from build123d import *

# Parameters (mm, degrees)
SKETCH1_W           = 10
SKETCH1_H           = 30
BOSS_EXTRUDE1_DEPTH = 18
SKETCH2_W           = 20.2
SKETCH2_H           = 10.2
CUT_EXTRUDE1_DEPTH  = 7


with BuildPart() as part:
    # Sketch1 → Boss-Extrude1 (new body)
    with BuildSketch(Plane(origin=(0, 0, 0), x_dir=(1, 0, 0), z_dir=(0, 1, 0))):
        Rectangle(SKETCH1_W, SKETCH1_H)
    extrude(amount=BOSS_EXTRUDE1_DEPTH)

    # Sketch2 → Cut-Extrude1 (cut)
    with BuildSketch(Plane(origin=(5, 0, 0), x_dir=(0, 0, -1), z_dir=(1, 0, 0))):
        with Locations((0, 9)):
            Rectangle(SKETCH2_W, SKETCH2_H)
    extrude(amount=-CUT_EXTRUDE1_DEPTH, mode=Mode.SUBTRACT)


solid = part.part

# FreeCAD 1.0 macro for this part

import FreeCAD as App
import Part
import Sketcher
from FreeCAD import Vector
Q = App.Units.Quantity

doc = App.newDocument("Part")
body = doc.addObject("PartDesign::Body", "Body")

sketch1 = body.newObject("Sketcher::SketchObject", "Sketch")
sketch1.AttachmentSupport = (doc.getObject("XZ_Plane"), [""])
sketch1.MapMode = "FlatFace"
sketch1.addGeometry(Part.LineSegment(Vector(-5, -15, 0), Vector(-5, 15, 0)), False)
sketch1.addGeometry(Part.LineSegment(Vector(-5, 15, 0), Vector(5, 15, 0)), False)
sketch1.addGeometry(Part.LineSegment(Vector(5, 15, 0), Vector(5, -15, 0)), False)
sketch1.addGeometry(Part.LineSegment(Vector(5, -15, 0), Vector(-5, -15, 0)), False)
sketch1.addConstraint(Sketcher.Constraint("Coincident", 0, 2, 1, 1))
sketch1.addConstraint(Sketcher.Constraint("Coincident", 1, 2, 2, 1))
sketch1.addConstraint(Sketcher.Constraint("Coincident", 2, 2, 3, 1))
sketch1.addConstraint(Sketcher.Constraint("Coincident", 3, 2, 0, 1))
sketch1.addConstraint(Sketcher.Constraint("Vertical", 0))
sketch1.addConstraint(Sketcher.Constraint("Horizontal", 1))
sketch1.addConstraint(Sketcher.Constraint("Vertical", 2))
sketch1.addConstraint(Sketcher.Constraint("Horizontal", 3))
sketch1.addConstraint(Sketcher.Constraint("Symmetric", 0, 2, 2, 2, -1, 1))
sketch1.addConstraint(Sketcher.Constraint("DistanceX", 1, 1, 1, 2, Q("10 mm")))
sketch1.addConstraint(Sketcher.Constraint("DistanceY", 0, 1, 0, 2, Q("30 mm")))
pad1 = body.newObject("PartDesign::Pad", "Pad")
pad1.Profile = sketch1
pad1.Length = 18
pad1.Reversed = True

sketch2 = body.newObject("Sketcher::SketchObject", "Sketch001")
sketch2.AttachmentSupport = (doc.getObject("YZ_Plane"), [""])
sketch2.MapMode = "FlatFace"
sketch2.AttachmentOffset = App.Placement(Vector(0, 0, 5), App.Rotation())
sketch2.addGeometry(Part.LineSegment(Vector(14.1, 10.1, 0), Vector(3.9, 10.1, 0)), False)
sketch2.addGeometry(Part.LineSegment(Vector(3.9, 10.1, 0), Vector(3.9, -10.1, 0)), False)
sketch2.addGeometry(Part.LineSegment(Vector(3.9, -10.1, 0), Vector(14.1, -10.1, 0)), False)
sketch2.addGeometry(Part.LineSegment(Vector(14.1, -10.1, 0), Vector(14.1, 10.1, 0)), False)
sketch2.addConstraint(Sketcher.Constraint("Coincident", 0, 2, 1, 1))
sketch2.addConstraint(Sketcher.Constraint("Coincident", 1, 2, 2, 1))
sketch2.addConstraint(Sketcher.Constraint("Coincident", 2, 2, 3, 1))
sketch2.addConstraint(Sketcher.Constraint("Coincident", 3, 2, 0, 1))
sketch2.addConstraint(Sketcher.Constraint("Horizontal", 0))
sketch2.addConstraint(Sketcher.Constraint("Vertical", 1))
sketch2.addConstraint(Sketcher.Constraint("Horizontal", 2))
sketch2.addConstraint(Sketcher.Constraint("Vertical", 3))
sketch2.addConstraint(Sketcher.Constraint("DistanceX", 0, 2, 0, 1, Q("10.2 mm")))
sketch2.addConstraint(Sketcher.Constraint("DistanceY", 1, 2, 1, 1, Q("20.2 mm")))
sketch2.addConstraint(Sketcher.Constraint("DistanceX", -1, 1, 0, 2, Q("3.9 mm")))
sketch2.addConstraint(Sketcher.Constraint("DistanceY", -1, 1, 0, 2, Q("10.1 mm")))
pocket1 = body.newObject("PartDesign::Pocket", "Pocket")
pocket1.Profile = sketch2
pocket1.Length = 7

doc.recompute()
